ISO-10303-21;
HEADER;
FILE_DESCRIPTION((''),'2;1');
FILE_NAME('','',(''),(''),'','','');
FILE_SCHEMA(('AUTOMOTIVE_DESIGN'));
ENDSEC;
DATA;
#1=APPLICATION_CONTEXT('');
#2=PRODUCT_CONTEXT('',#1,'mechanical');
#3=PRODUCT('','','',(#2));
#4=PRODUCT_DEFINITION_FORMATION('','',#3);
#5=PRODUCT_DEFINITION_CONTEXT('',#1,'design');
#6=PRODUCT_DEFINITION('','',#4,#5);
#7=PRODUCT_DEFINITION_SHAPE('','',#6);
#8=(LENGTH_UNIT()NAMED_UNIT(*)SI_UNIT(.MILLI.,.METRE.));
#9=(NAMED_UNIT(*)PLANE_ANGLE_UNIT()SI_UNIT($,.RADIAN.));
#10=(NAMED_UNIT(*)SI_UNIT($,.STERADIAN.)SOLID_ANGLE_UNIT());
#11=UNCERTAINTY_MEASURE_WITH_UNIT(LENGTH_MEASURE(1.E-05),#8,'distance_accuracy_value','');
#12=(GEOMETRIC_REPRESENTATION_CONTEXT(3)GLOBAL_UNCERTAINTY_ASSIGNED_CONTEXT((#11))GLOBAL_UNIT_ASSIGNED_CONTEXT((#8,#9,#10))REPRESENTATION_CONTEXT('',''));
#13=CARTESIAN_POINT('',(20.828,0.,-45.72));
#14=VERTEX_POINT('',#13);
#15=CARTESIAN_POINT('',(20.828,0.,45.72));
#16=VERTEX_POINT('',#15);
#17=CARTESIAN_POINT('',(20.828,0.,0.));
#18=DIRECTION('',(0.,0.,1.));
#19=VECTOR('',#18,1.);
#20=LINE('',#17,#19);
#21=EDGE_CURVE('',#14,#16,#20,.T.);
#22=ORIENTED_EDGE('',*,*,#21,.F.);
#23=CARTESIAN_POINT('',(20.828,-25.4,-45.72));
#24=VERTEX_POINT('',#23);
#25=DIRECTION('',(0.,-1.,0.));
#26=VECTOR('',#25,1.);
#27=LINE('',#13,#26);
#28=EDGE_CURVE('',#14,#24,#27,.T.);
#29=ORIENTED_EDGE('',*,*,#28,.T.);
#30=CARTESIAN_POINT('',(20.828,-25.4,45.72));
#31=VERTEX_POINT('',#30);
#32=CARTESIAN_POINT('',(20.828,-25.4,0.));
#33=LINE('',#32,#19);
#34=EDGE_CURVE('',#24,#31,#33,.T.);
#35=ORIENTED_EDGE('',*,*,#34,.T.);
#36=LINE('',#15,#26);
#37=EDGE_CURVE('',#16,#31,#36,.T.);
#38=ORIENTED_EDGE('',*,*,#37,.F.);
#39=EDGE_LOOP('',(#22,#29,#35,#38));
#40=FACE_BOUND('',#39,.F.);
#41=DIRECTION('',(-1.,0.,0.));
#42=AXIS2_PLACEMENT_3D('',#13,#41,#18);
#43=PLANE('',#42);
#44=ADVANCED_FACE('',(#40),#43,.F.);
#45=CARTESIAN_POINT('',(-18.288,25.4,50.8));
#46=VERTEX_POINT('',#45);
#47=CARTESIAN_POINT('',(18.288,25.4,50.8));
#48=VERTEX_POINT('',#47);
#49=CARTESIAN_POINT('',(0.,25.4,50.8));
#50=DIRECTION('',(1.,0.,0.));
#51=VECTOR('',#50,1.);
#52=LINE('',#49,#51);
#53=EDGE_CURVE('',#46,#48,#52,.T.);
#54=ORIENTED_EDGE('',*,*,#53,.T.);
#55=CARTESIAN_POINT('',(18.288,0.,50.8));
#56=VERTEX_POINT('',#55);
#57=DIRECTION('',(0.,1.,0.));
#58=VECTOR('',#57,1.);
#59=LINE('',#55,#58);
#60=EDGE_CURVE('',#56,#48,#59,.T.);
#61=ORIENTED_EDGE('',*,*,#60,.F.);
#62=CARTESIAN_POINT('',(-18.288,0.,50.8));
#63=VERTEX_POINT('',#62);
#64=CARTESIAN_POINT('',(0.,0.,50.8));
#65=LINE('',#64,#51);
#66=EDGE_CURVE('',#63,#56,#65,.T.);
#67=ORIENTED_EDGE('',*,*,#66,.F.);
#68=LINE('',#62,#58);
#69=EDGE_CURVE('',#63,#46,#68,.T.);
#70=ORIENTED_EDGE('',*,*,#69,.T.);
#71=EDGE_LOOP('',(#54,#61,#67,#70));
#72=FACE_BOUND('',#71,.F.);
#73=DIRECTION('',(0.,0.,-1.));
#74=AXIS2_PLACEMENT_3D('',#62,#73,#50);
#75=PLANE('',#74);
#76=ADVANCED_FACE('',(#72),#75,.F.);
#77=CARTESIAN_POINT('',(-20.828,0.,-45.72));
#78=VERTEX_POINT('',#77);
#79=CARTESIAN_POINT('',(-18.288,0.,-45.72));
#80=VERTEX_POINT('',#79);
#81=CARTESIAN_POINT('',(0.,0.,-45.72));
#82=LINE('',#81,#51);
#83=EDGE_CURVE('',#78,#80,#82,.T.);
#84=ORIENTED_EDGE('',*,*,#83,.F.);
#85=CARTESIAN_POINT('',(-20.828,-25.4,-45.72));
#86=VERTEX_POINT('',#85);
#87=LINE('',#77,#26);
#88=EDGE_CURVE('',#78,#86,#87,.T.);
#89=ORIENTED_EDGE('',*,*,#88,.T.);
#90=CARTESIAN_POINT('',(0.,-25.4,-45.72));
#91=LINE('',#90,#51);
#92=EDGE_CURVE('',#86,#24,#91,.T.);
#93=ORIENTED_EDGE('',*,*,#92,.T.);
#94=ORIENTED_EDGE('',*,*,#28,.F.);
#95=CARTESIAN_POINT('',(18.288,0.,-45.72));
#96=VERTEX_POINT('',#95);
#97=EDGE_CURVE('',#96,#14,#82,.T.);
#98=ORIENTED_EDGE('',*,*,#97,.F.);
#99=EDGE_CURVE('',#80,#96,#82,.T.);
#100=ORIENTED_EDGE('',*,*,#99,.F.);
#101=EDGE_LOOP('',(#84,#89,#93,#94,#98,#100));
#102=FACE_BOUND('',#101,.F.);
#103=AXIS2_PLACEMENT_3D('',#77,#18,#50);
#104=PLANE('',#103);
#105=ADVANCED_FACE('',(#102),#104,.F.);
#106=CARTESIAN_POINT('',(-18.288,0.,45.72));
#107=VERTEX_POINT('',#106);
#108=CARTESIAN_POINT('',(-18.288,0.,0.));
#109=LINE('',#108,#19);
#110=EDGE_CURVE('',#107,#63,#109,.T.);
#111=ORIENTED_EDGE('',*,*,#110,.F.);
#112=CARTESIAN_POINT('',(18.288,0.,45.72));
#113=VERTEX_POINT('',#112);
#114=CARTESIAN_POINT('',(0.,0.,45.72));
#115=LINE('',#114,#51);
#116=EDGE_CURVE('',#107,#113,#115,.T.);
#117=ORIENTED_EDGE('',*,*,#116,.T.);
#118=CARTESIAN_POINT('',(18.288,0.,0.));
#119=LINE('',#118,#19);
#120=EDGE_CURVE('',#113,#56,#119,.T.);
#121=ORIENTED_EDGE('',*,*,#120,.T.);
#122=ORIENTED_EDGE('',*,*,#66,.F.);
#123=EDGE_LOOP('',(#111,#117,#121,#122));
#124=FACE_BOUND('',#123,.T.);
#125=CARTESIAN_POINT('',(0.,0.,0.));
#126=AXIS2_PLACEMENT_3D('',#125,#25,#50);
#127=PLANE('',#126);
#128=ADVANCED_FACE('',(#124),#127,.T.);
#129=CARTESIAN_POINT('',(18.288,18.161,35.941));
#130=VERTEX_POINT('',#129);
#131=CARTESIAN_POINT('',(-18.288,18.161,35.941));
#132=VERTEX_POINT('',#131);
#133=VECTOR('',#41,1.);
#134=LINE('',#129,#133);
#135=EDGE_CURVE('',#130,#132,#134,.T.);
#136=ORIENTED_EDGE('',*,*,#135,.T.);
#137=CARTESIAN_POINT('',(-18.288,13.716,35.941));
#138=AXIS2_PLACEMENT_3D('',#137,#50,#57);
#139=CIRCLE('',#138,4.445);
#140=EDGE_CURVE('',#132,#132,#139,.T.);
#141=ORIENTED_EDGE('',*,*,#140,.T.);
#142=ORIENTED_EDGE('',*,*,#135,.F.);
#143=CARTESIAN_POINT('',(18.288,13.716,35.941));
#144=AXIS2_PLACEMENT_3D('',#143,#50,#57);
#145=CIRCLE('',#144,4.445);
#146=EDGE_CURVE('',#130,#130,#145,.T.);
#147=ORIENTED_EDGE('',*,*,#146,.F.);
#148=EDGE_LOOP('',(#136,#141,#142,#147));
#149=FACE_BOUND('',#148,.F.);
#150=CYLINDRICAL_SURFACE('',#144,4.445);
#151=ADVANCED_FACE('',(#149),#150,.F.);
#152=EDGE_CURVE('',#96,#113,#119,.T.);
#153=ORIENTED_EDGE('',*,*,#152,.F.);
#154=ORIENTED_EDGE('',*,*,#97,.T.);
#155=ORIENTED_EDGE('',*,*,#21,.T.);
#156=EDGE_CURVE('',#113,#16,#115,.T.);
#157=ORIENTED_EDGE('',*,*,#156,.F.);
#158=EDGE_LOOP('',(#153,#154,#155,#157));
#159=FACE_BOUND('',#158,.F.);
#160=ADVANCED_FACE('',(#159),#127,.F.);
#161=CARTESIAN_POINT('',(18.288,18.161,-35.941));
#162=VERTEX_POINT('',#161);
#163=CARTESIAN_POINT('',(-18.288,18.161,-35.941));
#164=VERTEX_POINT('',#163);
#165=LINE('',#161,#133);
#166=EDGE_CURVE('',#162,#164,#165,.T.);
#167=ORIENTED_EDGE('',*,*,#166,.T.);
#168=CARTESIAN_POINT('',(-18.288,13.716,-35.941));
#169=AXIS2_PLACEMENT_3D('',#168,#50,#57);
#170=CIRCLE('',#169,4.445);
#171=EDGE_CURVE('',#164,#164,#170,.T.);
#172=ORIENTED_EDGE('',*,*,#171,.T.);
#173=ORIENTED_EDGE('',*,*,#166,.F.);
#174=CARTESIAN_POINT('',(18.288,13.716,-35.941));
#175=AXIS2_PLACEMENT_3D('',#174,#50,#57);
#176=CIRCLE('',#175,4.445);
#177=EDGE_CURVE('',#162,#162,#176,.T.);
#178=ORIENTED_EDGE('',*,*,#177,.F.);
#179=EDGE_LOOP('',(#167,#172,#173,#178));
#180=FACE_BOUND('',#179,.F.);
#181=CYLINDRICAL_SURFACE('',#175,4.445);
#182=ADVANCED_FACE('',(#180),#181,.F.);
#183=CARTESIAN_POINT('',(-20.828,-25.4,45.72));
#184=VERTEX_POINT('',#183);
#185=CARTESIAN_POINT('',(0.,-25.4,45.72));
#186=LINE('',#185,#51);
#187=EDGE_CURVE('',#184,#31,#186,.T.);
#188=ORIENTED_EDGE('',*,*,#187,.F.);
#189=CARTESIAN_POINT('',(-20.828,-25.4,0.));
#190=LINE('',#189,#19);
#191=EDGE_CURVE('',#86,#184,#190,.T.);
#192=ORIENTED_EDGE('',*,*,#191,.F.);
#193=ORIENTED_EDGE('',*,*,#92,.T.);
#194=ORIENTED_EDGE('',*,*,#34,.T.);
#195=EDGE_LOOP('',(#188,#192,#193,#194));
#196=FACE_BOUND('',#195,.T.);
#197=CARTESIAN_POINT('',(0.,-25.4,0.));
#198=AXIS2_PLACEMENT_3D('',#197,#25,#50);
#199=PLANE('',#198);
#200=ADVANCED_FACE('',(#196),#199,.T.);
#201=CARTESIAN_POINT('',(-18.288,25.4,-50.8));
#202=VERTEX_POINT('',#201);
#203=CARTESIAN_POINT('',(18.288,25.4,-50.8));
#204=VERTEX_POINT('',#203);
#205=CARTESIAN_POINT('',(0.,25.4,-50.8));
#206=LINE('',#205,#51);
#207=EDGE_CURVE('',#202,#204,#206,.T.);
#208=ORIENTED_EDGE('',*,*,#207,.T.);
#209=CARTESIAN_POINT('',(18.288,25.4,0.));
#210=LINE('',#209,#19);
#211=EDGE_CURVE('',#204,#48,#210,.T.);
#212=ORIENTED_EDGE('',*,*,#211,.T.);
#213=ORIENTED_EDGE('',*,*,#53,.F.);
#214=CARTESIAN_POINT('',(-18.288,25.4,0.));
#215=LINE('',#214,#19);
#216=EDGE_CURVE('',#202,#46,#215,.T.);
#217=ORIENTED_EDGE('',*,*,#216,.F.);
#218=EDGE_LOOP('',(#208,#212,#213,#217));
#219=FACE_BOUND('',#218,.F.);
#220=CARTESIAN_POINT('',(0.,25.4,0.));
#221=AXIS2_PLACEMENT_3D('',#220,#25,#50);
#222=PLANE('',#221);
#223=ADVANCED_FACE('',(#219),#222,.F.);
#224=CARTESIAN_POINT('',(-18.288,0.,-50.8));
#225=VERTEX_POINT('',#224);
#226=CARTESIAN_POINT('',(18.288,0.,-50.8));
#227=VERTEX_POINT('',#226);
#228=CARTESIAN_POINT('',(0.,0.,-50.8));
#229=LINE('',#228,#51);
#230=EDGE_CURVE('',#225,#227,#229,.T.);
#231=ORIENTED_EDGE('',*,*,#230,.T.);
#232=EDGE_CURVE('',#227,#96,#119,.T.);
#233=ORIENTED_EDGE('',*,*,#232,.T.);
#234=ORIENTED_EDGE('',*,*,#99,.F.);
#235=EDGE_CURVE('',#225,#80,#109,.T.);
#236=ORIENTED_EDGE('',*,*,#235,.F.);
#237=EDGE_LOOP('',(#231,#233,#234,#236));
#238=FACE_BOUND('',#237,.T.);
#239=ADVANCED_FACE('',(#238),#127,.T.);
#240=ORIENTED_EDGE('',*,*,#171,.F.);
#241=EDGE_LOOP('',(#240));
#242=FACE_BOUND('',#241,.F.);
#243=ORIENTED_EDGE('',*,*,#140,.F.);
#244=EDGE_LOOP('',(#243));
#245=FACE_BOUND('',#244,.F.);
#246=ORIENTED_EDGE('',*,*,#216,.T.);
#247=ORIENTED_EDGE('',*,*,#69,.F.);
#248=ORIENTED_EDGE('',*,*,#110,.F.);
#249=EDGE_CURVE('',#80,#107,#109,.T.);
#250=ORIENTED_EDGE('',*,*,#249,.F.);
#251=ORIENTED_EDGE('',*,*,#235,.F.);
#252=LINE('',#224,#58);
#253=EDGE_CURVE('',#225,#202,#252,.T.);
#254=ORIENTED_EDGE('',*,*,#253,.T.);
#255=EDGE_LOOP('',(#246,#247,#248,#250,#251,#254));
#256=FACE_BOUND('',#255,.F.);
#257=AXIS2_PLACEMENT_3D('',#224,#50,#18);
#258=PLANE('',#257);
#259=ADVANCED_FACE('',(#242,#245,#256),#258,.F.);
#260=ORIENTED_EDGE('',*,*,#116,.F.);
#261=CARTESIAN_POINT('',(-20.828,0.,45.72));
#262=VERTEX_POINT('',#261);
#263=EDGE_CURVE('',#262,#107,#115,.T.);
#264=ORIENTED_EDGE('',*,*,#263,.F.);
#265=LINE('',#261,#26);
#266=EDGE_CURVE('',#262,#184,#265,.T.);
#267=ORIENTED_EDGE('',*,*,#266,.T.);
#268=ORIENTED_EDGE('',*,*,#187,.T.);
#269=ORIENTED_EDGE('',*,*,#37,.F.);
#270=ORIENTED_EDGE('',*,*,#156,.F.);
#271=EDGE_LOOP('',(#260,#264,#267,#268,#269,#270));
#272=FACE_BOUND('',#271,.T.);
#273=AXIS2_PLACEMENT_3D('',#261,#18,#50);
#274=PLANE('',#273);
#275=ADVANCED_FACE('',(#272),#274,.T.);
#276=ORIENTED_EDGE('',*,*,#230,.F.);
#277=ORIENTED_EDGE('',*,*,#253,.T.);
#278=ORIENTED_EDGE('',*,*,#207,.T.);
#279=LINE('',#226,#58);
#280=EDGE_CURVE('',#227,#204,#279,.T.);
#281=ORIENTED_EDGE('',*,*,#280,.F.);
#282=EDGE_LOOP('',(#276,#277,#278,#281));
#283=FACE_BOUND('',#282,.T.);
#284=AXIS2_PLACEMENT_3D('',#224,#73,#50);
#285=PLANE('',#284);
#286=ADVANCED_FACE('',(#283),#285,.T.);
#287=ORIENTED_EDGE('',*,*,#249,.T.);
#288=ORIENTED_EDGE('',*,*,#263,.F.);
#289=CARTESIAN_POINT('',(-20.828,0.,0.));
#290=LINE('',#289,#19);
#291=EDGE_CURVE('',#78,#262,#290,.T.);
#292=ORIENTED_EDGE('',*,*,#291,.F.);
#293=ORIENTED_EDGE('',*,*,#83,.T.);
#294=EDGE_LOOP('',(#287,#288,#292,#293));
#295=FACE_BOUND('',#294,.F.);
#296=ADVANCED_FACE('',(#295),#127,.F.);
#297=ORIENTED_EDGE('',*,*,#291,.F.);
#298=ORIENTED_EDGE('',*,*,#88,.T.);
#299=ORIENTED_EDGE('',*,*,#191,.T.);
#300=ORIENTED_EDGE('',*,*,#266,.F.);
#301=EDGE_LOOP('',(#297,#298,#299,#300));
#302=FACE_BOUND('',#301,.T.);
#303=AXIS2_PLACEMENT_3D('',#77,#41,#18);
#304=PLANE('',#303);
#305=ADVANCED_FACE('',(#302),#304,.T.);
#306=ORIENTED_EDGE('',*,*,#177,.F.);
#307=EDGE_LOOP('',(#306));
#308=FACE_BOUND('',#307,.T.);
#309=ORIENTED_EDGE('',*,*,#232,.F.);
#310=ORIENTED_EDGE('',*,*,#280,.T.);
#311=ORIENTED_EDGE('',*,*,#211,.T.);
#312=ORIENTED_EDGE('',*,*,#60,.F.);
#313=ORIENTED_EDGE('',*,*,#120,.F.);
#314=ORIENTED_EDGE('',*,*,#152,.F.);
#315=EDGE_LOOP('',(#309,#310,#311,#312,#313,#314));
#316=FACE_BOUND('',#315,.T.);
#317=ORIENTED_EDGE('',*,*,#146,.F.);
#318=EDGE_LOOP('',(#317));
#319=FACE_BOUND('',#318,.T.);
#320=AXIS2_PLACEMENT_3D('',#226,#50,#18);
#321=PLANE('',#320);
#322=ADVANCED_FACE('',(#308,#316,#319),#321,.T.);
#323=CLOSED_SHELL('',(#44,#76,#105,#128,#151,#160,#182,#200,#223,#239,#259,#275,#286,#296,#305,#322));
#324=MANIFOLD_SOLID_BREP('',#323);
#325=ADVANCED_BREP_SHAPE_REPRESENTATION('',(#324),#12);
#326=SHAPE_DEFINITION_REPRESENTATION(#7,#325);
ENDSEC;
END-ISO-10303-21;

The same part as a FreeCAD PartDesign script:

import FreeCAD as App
import Part
import Sketcher
Q = App.Units.Quantity


def add_polygon(sketch, points):
    """Adds a closed chain of lines whose ends are joined by coincident constraints."""
    first, n = sketch.GeometryCount, len(points)
    for a, b in zip(points, points[1:] + points[:1]):
        sketch.addGeometry(Part.LineSegment(App.Vector(*a, 0), App.Vector(*b, 0)), False)
    for i in range(n):
        sketch.addConstraint(Sketcher.Constraint("Coincident", first + i, 2, first + (i + 1) % n, 1))

doc = App.newDocument("Part")
body = doc.addObject("PartDesign::Body", "Body")

# Sketch on XZ plane
sketch1 = doc.addObject("Sketcher::SketchObject", "Sketch")
body.addObject(sketch1)
sketch1.AttachmentSupport = (doc.XZ_Plane, [""])
sketch1.MapMode = "FlatFace"
add_polygon(sketch1, [(-21, 46), (-21, -46), (21, -46), (21, 46)])  # lines 0-3
sketch1.addConstraint(Sketcher.Constraint("Vertical", 0))
sketch1.addConstraint(Sketcher.Constraint("Horizontal", 1))
sketch1.addConstraint(Sketcher.Constraint("Vertical", 2))
sketch1.addConstraint(Sketcher.Constraint("Horizontal", 3))
sketch1.addConstraint(Sketcher.Constraint("Symmetric", 0, 2, 2, 2, -1, 1))
sketch1.addConstraint(Sketcher.Constraint("DistanceY", 0, 2, 0, 1, Q("3.6 in")))
sketch1.addConstraint(Sketcher.Constraint("DistanceX", 1, 1, 1, 2, Q("1.64 in")))
pad1 = doc.addObject("PartDesign::Pad", "Pad")
body.addObject(pad1)
pad1.Profile = sketch1
pad1.Length = Q("1 in")

# Sketch on XZ plane
sketch2 = doc.addObject("Sketcher::SketchObject", "Sketch001")
body.addObject(sketch2)
sketch2.AttachmentSupport = (doc.XZ_Plane, [""])
sketch2.MapMode = "FlatFace"
add_polygon(sketch2, [(-18, 51), (-18, -51), (18, -51), (18, 51)])  # lines 0-3
sketch2.addConstraint(Sketcher.Constraint("Vertical", 0))
sketch2.addConstraint(Sketcher.Constraint("Horizontal", 1))
sketch2.addConstraint(Sketcher.Constraint("Vertical", 2))
sketch2.addConstraint(Sketcher.Constraint("Horizontal", 3))
sketch2.addConstraint(Sketcher.Constraint("Symmetric", 0, 2, 2, 2, -1, 1))
sketch2.addConstraint(Sketcher.Constraint("DistanceY", 0, 2, 0, 1, Q("4 in")))
sketch2.addConstraint(Sketcher.Constraint("DistanceX", 1, 1, 1, 2, Q("1.44 in")))
pad2 = doc.addObject("PartDesign::Pad", "Pad001")
body.addObject(pad2)
pad2.Profile = sketch2
pad2.Length = Q("1 in")
pad2.Reversed = True

# Sketch on YZ plane
sketch3 = doc.addObject("Sketcher::SketchObject", "Sketch002")
body.addObject(sketch3)
sketch3.AttachmentSupport = (doc.YZ_Plane, [""])
sketch3.MapMode = "FlatFace"
sketch3.AttachmentOffset = App.Placement(App.Vector(0, 0, 0.72 * 25.4), App.Rotation())
sketch3.addGeometry(Part.Circle(App.Vector(13.7, 35.9, 0), App.Vector(0, 0, 1), 4.4), False)
sketch3.addGeometry(Part.Circle(App.Vector(13.7, -35.9, 0), App.Vector(0, 0, 1), 4.4), False)
sketch3.addConstraint(Sketcher.Constraint("Equal", 0, 1))
sketch3.addConstraint(Sketcher.Constraint("Symmetric", 0, 3, 1, 3, -1))
sketch3.addConstraint(Sketcher.Constraint("Diameter", 0, Q("0.35 in")))
sketch3.addConstraint(Sketcher.Constraint("DistanceX", -1, 1, 0, 3, Q("0.54 in")))
sketch3.addConstraint(Sketcher.Constraint("DistanceY", 1, 3, 0, 3, Q("2.83 in")))
pocket1 = doc.addObject("PartDesign::Pocket", "Pocket")
body.addObject(pocket1)
pocket1.Profile = sketch3
pocket1.Type = "ThroughAll"

doc.recompute()
